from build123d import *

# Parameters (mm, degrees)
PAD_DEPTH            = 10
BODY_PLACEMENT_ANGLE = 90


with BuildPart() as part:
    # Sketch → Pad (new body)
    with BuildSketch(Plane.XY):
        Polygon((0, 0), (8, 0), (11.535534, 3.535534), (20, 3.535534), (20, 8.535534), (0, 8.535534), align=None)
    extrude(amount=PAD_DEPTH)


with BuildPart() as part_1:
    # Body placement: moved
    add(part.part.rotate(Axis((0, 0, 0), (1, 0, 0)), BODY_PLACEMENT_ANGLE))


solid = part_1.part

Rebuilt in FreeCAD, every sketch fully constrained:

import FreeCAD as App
import Part
import Sketcher
from FreeCAD import Vector
Q = App.Units.Quantity


def add_polygon(sketch, points):
    """Adds a closed chain of lines whose ends are joined by coincident constraints."""
    first, n = sketch.GeometryCount, len(points)
    for a, b in zip(points, points[1:] + points[:1]):
        sketch.addGeometry(Part.LineSegment(App.Vector(*a, 0), App.Vector(*b, 0)), False)
    for i in range(n):
        sketch.addConstraint(Sketcher.Constraint("Coincident", first + i, 2, first + (i + 1) % n, 1))

doc = App.newDocument("Part")
body = doc.addObject("PartDesign::Body", "Body")

# Sketch on XY plane
sketch1 = body.newObject("Sketcher::SketchObject", "Sketch")
sketch1.AttachmentSupport = (doc.getObject("XY_Plane"), [""])
sketch1.MapMode = "FlatFace"
add_polygon(sketch1, [(0, 0), (8, 0), (12, 4), (20, 4), (20, 9), (0, 9)])  # lines 0-5
sketch1.addConstraint(Sketcher.Constraint("Horizontal", 0))
sketch1.addConstraint(Sketcher.Constraint("Horizontal", 2))
sketch1.addConstraint(Sketcher.Constraint("Vertical", 3))
sketch1.addConstraint(Sketcher.Constraint("Horizontal", 4))
sketch1.addConstraint(Sketcher.Constraint("Vertical", 5))
sketch1.addConstraint(Sketcher.Constraint("Coincident", 5, 2, -1, 1))
sketch1.addConstraint(Sketcher.Constraint("DistanceX", 0, 1, 0, 2, Q("8 mm")))
sketch1.addConstraint(Sketcher.Constraint("DistanceX", 4, 2, 4, 1, Q("20 mm")))
sketch1.addConstraint(Sketcher.Constraint("DistanceY", 3, 1, 3, 2, Q("5 mm")))
sketch1.addConstraint(Sketcher.Constraint("Angle", 1, Q("45 deg")))
sketch1.addConstraint(Sketcher.Constraint("Distance", 1, Q("5 mm")))
pad1 = body.newObject("PartDesign::Pad", "Pad")
pad1.Profile = sketch1
pad1.Length = 10
body2 = doc.addObject("PartDesign::Body", "Body001")
doc.recompute()

body.Placement = App.Placement(Vector(0, 0, 0), App.Rotation(Vector(1, 0, 0), 90))
boolean = body2.newObject("PartDesign::Boolean", "Boolean")
boolean.Type = "Fuse"
boolean.addObjects([body])

doc.recompute()
